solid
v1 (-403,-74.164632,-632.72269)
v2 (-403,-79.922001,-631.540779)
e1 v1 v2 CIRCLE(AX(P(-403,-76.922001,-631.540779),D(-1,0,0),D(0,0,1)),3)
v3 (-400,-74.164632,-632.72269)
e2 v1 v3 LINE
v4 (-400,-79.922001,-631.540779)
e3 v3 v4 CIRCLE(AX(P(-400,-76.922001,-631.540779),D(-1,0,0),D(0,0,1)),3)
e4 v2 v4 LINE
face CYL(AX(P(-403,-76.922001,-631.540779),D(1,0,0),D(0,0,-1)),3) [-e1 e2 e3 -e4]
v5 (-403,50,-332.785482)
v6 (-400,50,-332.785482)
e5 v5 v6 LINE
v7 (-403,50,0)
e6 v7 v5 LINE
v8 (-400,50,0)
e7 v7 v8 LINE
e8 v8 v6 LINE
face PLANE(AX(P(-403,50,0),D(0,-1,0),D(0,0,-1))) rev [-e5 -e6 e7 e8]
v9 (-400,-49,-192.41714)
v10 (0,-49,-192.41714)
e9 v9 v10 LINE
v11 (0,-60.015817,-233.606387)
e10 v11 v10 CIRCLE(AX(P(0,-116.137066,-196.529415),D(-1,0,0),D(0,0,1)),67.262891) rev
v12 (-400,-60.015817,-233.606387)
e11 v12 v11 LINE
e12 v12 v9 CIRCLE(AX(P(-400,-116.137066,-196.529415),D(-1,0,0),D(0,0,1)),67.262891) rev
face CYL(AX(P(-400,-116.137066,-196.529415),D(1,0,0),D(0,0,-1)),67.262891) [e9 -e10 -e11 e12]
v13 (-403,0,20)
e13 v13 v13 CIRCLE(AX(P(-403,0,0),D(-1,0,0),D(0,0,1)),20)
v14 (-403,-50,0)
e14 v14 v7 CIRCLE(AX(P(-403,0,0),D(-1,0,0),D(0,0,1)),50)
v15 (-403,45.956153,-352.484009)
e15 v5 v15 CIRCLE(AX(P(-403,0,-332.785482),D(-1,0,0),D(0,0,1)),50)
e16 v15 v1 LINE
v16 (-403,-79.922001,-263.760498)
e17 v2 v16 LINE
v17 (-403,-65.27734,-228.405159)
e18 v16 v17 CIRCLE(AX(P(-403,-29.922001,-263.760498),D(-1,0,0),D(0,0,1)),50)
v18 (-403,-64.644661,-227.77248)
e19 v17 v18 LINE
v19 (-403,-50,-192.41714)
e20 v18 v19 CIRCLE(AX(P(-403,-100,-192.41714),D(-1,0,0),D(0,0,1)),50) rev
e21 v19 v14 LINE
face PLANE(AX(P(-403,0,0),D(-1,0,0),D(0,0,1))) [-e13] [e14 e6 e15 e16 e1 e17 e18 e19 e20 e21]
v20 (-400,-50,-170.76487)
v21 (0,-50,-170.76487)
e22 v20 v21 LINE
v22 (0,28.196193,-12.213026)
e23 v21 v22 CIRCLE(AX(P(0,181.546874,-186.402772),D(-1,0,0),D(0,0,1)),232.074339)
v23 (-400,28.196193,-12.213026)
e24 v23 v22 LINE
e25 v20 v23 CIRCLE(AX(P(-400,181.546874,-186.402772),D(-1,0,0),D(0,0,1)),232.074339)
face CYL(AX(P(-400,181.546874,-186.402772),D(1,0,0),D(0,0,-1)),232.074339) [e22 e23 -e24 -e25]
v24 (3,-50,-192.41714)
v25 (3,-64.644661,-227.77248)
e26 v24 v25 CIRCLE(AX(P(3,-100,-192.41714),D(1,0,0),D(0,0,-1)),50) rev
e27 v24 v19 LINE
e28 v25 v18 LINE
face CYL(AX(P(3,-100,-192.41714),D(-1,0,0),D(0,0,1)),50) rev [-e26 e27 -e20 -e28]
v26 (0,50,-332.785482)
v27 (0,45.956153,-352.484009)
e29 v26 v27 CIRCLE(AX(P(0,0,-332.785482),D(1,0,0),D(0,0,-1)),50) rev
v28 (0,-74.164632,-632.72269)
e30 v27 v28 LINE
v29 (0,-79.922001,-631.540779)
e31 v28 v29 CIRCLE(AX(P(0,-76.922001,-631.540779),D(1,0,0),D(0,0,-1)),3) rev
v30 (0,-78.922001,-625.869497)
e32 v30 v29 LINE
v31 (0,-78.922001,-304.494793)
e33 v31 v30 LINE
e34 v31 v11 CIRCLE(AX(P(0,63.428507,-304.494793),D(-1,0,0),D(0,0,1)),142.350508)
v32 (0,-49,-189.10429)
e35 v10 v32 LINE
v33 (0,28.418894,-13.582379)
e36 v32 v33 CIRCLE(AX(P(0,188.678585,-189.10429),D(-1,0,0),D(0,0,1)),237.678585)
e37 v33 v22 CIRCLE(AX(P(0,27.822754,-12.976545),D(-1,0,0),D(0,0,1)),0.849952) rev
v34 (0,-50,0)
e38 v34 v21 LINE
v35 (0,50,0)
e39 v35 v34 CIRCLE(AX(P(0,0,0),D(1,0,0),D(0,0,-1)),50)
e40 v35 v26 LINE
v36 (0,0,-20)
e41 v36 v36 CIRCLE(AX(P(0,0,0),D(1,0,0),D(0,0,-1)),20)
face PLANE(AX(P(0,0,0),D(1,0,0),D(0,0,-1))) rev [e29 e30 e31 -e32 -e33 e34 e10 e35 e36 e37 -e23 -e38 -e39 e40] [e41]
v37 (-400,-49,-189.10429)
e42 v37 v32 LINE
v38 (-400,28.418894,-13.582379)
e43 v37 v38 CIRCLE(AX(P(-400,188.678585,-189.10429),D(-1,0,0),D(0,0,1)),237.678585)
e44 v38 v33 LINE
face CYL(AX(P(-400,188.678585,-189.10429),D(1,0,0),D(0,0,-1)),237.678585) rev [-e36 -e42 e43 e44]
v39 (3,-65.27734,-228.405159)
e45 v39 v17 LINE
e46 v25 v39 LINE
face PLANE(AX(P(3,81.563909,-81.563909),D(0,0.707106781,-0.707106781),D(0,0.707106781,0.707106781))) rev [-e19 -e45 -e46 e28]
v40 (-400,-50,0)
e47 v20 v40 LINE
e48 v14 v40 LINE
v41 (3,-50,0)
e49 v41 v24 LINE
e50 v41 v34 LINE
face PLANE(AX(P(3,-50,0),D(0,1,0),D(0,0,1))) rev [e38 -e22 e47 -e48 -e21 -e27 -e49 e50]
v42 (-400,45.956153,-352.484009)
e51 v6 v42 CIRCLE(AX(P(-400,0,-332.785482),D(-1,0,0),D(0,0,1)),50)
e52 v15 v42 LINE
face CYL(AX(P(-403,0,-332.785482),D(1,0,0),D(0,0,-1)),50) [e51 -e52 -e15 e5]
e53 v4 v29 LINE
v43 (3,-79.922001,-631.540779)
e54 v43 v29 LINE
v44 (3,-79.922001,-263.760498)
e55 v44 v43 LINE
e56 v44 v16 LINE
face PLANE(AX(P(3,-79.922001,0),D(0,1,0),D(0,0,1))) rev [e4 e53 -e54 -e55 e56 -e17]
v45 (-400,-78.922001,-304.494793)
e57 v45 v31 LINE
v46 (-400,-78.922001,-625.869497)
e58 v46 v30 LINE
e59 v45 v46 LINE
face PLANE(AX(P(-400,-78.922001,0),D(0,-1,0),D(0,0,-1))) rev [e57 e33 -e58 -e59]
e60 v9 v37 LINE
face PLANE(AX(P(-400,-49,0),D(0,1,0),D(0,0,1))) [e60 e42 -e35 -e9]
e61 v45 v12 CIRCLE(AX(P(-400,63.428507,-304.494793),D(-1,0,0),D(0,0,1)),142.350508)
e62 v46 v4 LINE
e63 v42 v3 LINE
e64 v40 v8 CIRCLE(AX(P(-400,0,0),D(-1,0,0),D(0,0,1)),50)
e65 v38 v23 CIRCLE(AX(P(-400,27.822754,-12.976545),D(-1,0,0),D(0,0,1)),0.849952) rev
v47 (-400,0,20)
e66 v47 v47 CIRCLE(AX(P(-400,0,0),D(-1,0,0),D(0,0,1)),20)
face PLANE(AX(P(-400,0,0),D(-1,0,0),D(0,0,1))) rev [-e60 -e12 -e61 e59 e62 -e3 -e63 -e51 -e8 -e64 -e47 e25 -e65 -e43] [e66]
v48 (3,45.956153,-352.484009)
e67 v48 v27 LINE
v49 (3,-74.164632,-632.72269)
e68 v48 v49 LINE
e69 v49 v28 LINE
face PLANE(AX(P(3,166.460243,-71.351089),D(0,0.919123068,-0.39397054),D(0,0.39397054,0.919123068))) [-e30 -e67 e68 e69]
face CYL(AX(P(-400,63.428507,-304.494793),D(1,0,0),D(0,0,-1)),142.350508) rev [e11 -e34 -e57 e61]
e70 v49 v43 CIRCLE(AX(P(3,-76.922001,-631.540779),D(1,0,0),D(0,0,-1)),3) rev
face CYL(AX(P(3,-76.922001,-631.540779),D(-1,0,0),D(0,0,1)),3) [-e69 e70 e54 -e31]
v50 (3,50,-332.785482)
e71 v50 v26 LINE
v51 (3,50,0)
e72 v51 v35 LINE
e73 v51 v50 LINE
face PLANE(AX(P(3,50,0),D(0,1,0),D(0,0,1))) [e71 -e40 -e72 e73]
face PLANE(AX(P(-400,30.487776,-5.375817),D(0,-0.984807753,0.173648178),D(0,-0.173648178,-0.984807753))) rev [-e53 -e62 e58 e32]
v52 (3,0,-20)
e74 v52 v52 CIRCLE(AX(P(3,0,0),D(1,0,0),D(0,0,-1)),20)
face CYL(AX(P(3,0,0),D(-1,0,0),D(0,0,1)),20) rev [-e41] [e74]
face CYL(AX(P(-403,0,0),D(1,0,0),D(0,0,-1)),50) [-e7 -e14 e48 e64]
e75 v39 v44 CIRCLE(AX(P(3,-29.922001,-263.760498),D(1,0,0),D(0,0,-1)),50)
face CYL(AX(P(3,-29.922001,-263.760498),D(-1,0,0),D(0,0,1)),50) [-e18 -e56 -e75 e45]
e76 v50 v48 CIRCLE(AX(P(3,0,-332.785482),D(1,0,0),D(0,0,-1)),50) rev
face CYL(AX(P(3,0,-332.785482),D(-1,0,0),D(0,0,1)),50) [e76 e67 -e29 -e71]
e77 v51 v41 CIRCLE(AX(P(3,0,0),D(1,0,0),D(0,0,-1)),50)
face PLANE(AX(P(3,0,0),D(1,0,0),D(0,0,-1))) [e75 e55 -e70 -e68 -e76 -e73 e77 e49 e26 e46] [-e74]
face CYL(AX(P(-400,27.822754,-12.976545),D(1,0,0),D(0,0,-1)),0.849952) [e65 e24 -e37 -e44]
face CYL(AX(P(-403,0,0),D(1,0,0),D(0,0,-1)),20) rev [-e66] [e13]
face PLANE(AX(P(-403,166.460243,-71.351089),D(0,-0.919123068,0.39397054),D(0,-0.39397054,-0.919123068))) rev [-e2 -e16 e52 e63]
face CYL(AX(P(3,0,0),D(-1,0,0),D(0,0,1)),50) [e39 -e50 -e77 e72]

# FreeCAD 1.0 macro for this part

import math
import FreeCAD as App
import Part
import Sketcher
from FreeCAD import Vector
Q = App.Units.Quantity

doc = App.newDocument("Part")
body = doc.addObject("PartDesign::Body", "Body")

# Sketch on YZ plane
sketch1 = doc.addObject("Sketcher::SketchObject", "Sketch")
body.addObject(sketch1)
sketch1.AttachmentSupport = (doc.YZ_Plane, [""])
sketch1.MapMode = "FlatFace"
sketch1.addGeometry(Part.LineSegment(Vector(-50, 0, 0), Vector(-50, -192.4, 0)), False)
sketch1.addGeometry(Part.ArcOfCircle(Part.Circle(Vector(-100, -192.4, 0), Vector(0, 0, 1), 50), math.radians(-45), math.radians(0)), False)
sketch1.addGeometry(Part.LineSegment(Vector(-64.6, -227.8, 0), Vector(-65.3, -228.4, 0)), False)
sketch1.addGeometry(Part.ArcOfCircle(Part.Circle(Vector(-29.9, -263.8, 0), Vector(0, 0, 1), 50), math.radians(135), math.radians(180)), False)
sketch1.addGeometry(Part.LineSegment(Vector(-79.9, -263.8, 0), Vector(-79.9, -631.5, 0)), False)
sketch1.addGeometry(Part.ArcOfCircle(Part.Circle(Vector(-76.9, -631.5, 0), Vector(0, 0, 1), 3), math.radians(180), math.radians(337)), False)
sketch1.addGeometry(Part.LineSegment(Vector(-74.2, -632.7, 0), Vector(46, -352.5, 0)), False)
sketch1.addGeometry(Part.ArcOfCircle(Part.Circle(Vector(0, -332.8, 0), Vector(0, 0, 1), 50), math.radians(-23), math.radians(0)), False)
sketch1.addGeometry(Part.LineSegment(Vector(50, -332.8, 0), Vector(50, 0, 0)), False)
sketch1.addGeometry(Part.ArcOfCircle(Part.Circle(Vector(0, 0, 0), Vector(0, 0, 1), 50), math.radians(0), math.radians(180)), False)
sketch1.addGeometry(Part.Circle(Vector(0, 0, 0), Vector(0, 0, 1), 20), False)
sketch1.addConstraint(Sketcher.Constraint("Tangent", 0, 2, 1, 2))
sketch1.addConstraint(Sketcher.Constraint("Tangent", 1, 1, 2, 1))
sketch1.addConstraint(Sketcher.Constraint("Tangent", 2, 2, 3, 1))
sketch1.addConstraint(Sketcher.Constraint("Tangent", 3, 2, 4, 1))
sketch1.addConstraint(Sketcher.Constraint("Tangent", 4, 2, 5, 1))
sketch1.addConstraint(Sketcher.Constraint("Tangent", 5, 2, 6, 1))
sketch1.addConstraint(Sketcher.Constraint("Tangent", 6, 2, 7, 1))
sketch1.addConstraint(Sketcher.Constraint("Tangent", 7, 2, 8, 1))
sketch1.addConstraint(Sketcher.Constraint("Tangent", 8, 2, 9, 1))
sketch1.addConstraint(Sketcher.Constraint("Tangent", 9, 2, 0, 1))
sketch1.addConstraint(Sketcher.Constraint("Vertical", 0))
sketch1.addConstraint(Sketcher.Constraint("Vertical", 4))
sketch1.addConstraint(Sketcher.Constraint("Vertical", 8))
sketch1.addConstraint(Sketcher.Constraint("Coincident", 9, 3, -1, 1))
sketch1.addConstraint(Sketcher.Constraint("Coincident", 10, 3, -1, 1))
sketch1.addConstraint(Sketcher.Constraint("Equal", 1, 3))
sketch1.addConstraint(Sketcher.Constraint("Equal", 3, 7))
sketch1.addConstraint(Sketcher.Constraint("Equal", 7, 9))
sketch1.addConstraint(Sketcher.Constraint("Diameter", 10, 40.0))
sketch1.addConstraint(Sketcher.Constraint("Radius", 1, 50.0))
sketch1.addConstraint(Sketcher.Constraint("Radius", 5, 3.0))
sketch1.addConstraint(Sketcher.Constraint("Angle", 2, Q("-135 deg")))
sketch1.addConstraint(Sketcher.Constraint("DistanceX", 3, 3, -1, 1, 29.922001))
sketch1.addConstraint(Sketcher.Constraint("DistanceY", 0, 2, 0, 1, 192.41714))
sketch1.addConstraint(Sketcher.Constraint("DistanceY", 4, 2, 4, 1, 367.780281))
sketch1.addConstraint(Sketcher.Constraint("DistanceY", 8, 1, 8, 2, 332.785482))
pad1 = doc.addObject("PartDesign::Pad", "Pad")
body.addObject(pad1)
pad1.Profile = sketch1
pad1.Length = 3

# Sketch on YZ plane
sketch2 = doc.addObject("Sketcher::SketchObject", "Sketch001")
body.addObject(sketch2)
sketch2.AttachmentSupport = (doc.YZ_Plane, [""])
sketch2.MapMode = "FlatFace"
sketch2.addGeometry(Part.ArcOfCircle(Part.Circle(Vector(63.428507, -304.494793, 0), Vector(0, 0, 1), 142.350508), math.radians(150.133228), math.radians(180)), False)
sketch2.addGeometry(Part.LineSegment(Vector(-78.922001, -304.494793, 0), Vector(-78.922001, -625.869497, 0)), False)
sketch2.addGeometry(Part.LineSegment(Vector(-78.922001, -625.869497, 0), Vector(-79.922001, -631.540779, 0)), False)
sketch2.addGeometry(Part.LineSegment(Vector(-79.922001, -631.540779, 0), Vector(-79.922001, -263.760498, 0)), False)
sketch2.addGeometry(Part.ArcOfCircle(Part.Circle(Vector(-29.922001, -263.760498, 0), Vector(0, 0, 1), 50), math.radians(135), math.radians(180)), False)
sketch2.addGeometry(Part.LineSegment(Vector(-65.27734, -228.405159, 0), Vector(-64.644661, -227.77248, 0)), False)
sketch2.addGeometry(Part.ArcOfCircle(Part.Circle(Vector(-100, -192.41714, 0), Vector(0, 0, 1), 50), math.radians(-45), math.radians(0)), False)
sketch2.addGeometry(Part.LineSegment(Vector(-50, -192.41714, 0), Vector(-50, -170.76487, 0)), False)
sketch2.addGeometry(Part.ArcOfCircle(Part.Circle(Vector(181.546874, -186.402772, 0), Vector(0, 0, 1), 232.074339), math.radians(131.359584), math.radians(176.136302)), False)
sketch2.addGeometry(Part.ArcOfCircle(Part.Circle(Vector(27.822754, -12.976545, 0), Vector(0, 0, 1), 0.849952), math.radians(-45.46209), math.radians(63.936601)), False)
sketch2.addGeometry(Part.ArcOfCircle(Part.Circle(Vector(188.678585, -189.10429, 0), Vector(0, 0, 1), 237.678585), math.radians(132.397537), math.radians(180)), False)
sketch2.addGeometry(Part.LineSegment(Vector(-49, -189.10429, 0), Vector(-49, -192.41714, 0)), False)
sketch2.addGeometry(Part.ArcOfCircle(Part.Circle(Vector(-116.137066, -196.529415, 0), Vector(0, 0, 1), 67.262891), math.radians(-33.451078), math.radians(3.505098)), False)
sketch2.addConstraint(Sketcher.Constraint("Coincident", 0, 2, 1, 1))
sketch2.addConstraint(Sketcher.Constraint("Coincident", 1, 2, 2, 1))
sketch2.addConstraint(Sketcher.Constraint("Coincident", 2, 2, 3, 1))
sketch2.addConstraint(Sketcher.Constraint("Coincident", 3, 2, 4, 2))
sketch2.addConstraint(Sketcher.Constraint("Coincident", 4, 1, 5, 1))
sketch2.addConstraint(Sketcher.Constraint("Coincident", 5, 2, 6, 1))
sketch2.addConstraint(Sketcher.Constraint("Coincident", 6, 2, 7, 1))
sketch2.addConstraint(Sketcher.Constraint("Coincident", 7, 2, 8, 2))
sketch2.addConstraint(Sketcher.Constraint("Coincident", 8, 1, 9, 2))
sketch2.addConstraint(Sketcher.Constraint("Coincident", 9, 1, 10, 1))
sketch2.addConstraint(Sketcher.Constraint("Coincident", 10, 2, 11, 1))
sketch2.addConstraint(Sketcher.Constraint("Coincident", 11, 2, 12, 2))
sketch2.addConstraint(Sketcher.Constraint("Coincident", 12, 1, 0, 1))
sketch2.addConstraint(Sketcher.Constraint("Vertical", 1))
sketch2.addConstraint(Sketcher.Constraint("Vertical", 3))
sketch2.addConstraint(Sketcher.Constraint("Vertical", 7))
sketch2.addConstraint(Sketcher.Constraint("Vertical", 11))
sketch2.addConstraint(Sketcher.Constraint("Radius", 4, 50.0))
sketch2.addConstraint(Sketcher.Constraint("Radius", 6, 50.0))
sketch2.addConstraint(Sketcher.Constraint("DistanceX", 6, 3, -1, 1, 100.0))
sketch2.addConstraint(Sketcher.Constraint("DistanceX", 10, 2, -1, 1, 49.0))
sketch2.addConstraint(Sketcher.Constraint("DistanceX", 0, 2, 4, 3, 49.0))
sketch2.addConstraint(Sketcher.Constraint("Radius", 0, 142.350508))
sketch2.addConstraint(Sketcher.Constraint("Radius", 8, 232.074339))
sketch2.addConstraint(Sketcher.Constraint("Radius", 9, 0.849952))
sketch2.addConstraint(Sketcher.Constraint("Radius", 12, 67.262891))
sketch2.addConstraint(Sketcher.Constraint("DistanceX", 4, 3, -1, 1, 29.922001))
sketch2.addConstraint(Sketcher.Constraint("Radius", 10, 237.678585))
sketch2.addConstraint(Sketcher.Constraint("DistanceY", 1, 2, 4, 3, 362.108999))
sketch2.addConstraint(Sketcher.Constraint("DistanceY", 3, 1, 3, 2, 367.780281))
sketch2.addConstraint(Sketcher.Constraint("DistanceY", 7, 1, 7, 2, 21.652271))
sketch2.addConstraint(Sketcher.Constraint("DistanceY", 11, 2, 11, 1, 3.312851))
sketch2.addConstraint(Sketcher.Constraint("DistanceX", 8, 1, 9, 1, 0.222701))
sketch2.addConstraint(Sketcher.Constraint("Distance", 2, 5.75877))
sketch2.addConstraint(Sketcher.Constraint("DistanceY", 1, 2, 1, 1, 321.374704))
sketch2.addConstraint(Sketcher.Constraint("DistanceY", 6, 3, -1, 1, 192.41714))
sketch2.addConstraint(Sketcher.Constraint("DistanceY", 10, 3, -1, 1, 189.10429))
sketch2.addConstraint(Sketcher.Constraint("DistanceY", 2, 2, -1, 1, 631.540779))
sketch2.addConstraint(Sketcher.Constraint("DistanceX", 4, 1, -1, 1, 65.27734))
sketch2.addConstraint(Sketcher.Constraint("DistanceX", 5, 2, -1, 1, 64.644661))
sketch2.addConstraint(Sketcher.Constraint("DistanceY", 6, 2, -1, 1, 192.41714))
sketch2.addConstraint(Sketcher.Constraint("DistanceY", 9, 1, -1, 1, 13.582379))
sketch2.addConstraint(Sketcher.Constraint("DistanceY", 10, 2, -1, 1, 189.10429))
sketch2.addConstraint(Sketcher.Constraint("DistanceY", 0, 3, 8, 3, 118.092021))
sketch2.addConstraint(Sketcher.Constraint("DistanceY", 6, 3, 8, 3, 6.014368))
sketch2.addConstraint(Sketcher.Constraint("DistanceX", 12, 3, 9, 3, 143.95982))
pad2 = doc.addObject("PartDesign::Pad", "Pad001")
body.addObject(pad2)
pad2.Profile = sketch2
pad2.Length = 400
pad2.Reversed = True

# Sketch on YZ plane
sketch3 = doc.addObject("Sketcher::SketchObject", "Sketch002")
body.addObject(sketch3)
sketch3.AttachmentSupport = (doc.YZ_Plane, [""])
sketch3.MapMode = "FlatFace"
sketch3.AttachmentOffset = App.Placement(Vector(0, 0, -400), App.Rotation())
sketch3.addGeometry(Part.LineSegment(Vector(46, -352.5, 0), Vector(-74.2, -632.7, 0)), False)
sketch3.addGeometry(Part.ArcOfCircle(Part.Circle(Vector(-76.9, -631.5, 0), Vector(0, 0, 1), 3), math.radians(180), math.radians(337)), False)
sketch3.addGeometry(Part.LineSegment(Vector(-79.9, -631.5, 0), Vector(-79.9, -263.8, 0)), False)
sketch3.addGeometry(Part.ArcOfCircle(Part.Circle(Vector(-29.9, -263.8, 0), Vector(0, 0, 1), 50), math.radians(135), math.radians(180)), False)
sketch3.addGeometry(Part.LineSegment(Vector(-65.3, -228.4, 0), Vector(-64.6, -227.8, 0)), False)
sketch3.addGeometry(Part.ArcOfCircle(Part.Circle(Vector(-100, -192.4, 0), Vector(0, 0, 1), 50), math.radians(-45), math.radians(0)), False)
sketch3.addGeometry(Part.LineSegment(Vector(-50, -192.4, 0), Vector(-50, 0, 0)), False)
sketch3.addGeometry(Part.ArcOfCircle(Part.Circle(Vector(0, 0, 0), Vector(0, 0, 1), 50), math.radians(0), math.radians(180)), False)
sketch3.addGeometry(Part.LineSegment(Vector(50, 0, 0), Vector(50, -332.8, 0)), False)
sketch3.addGeometry(Part.ArcOfCircle(Part.Circle(Vector(0, -332.8, 0), Vector(0, 0, 1), 50), math.radians(-23), math.radians(0)), False)
sketch3.addGeometry(Part.Circle(Vector(0, 0, 0), Vector(0, 0, 1), 20), False)
sketch3.addConstraint(Sketcher.Constraint("Tangent", 0, 2, 1, 2))
sketch3.addConstraint(Sketcher.Constraint("Tangent", 1, 1, 2, 1))
sketch3.addConstraint(Sketcher.Constraint("Tangent", 2, 2, 3, 2))
sketch3.addConstraint(Sketcher.Constraint("Tangent", 3, 1, 4, 1))
sketch3.addConstraint(Sketcher.Constraint("Tangent", 4, 2, 5, 1))
sketch3.addConstraint(Sketcher.Constraint("Tangent", 5, 2, 6, 1))
sketch3.addConstraint(Sketcher.Constraint("Tangent", 6, 2, 7, 2))
sketch3.addConstraint(Sketcher.Constraint("Tangent", 7, 1, 8, 1))
sketch3.addConstraint(Sketcher.Constraint("Tangent", 8, 2, 9, 2))
sketch3.addConstraint(Sketcher.Constraint("Tangent", 9, 1, 0, 1))
sketch3.addConstraint(Sketcher.Constraint("Vertical", 2))
sketch3.addConstraint(Sketcher.Constraint("Vertical", 6))
sketch3.addConstraint(Sketcher.Constraint("Vertical", 8))
sketch3.addConstraint(Sketcher.Constraint("Coincident", 7, 3, -1, 1))
sketch3.addConstraint(Sketcher.Constraint("Coincident", 10, 3, -1, 1))
sketch3.addConstraint(Sketcher.Constraint("Equal", 3, 5))
sketch3.addConstraint(Sketcher.Constraint("Equal", 5, 7))
sketch3.addConstraint(Sketcher.Constraint("Equal", 7, 9))
sketch3.addConstraint(Sketcher.Constraint("Diameter", 10, 40.0))
sketch3.addConstraint(Sketcher.Constraint("Radius", 1, 3.0))
sketch3.addConstraint(Sketcher.Constraint("Radius", 3, 50.0))
sketch3.addConstraint(Sketcher.Constraint("Angle", 4, Q("45 deg")))
sketch3.addConstraint(Sketcher.Constraint("DistanceX", 1, 3, -1, 1, 76.922001))
sketch3.addConstraint(Sketcher.Constraint("DistanceY", 2, 1, 2, 2, 367.780281))
sketch3.addConstraint(Sketcher.Constraint("DistanceY", 6, 1, 6, 2, 192.41714))
sketch3.addConstraint(Sketcher.Constraint("DistanceY", 8, 2, 8, 1, 332.785482))
pad3 = doc.addObject("PartDesign::Pad", "Pad002")
body.addObject(pad3)
pad3.Profile = sketch3
pad3.Length = 3
pad3.Reversed = True

doc.recompute()
